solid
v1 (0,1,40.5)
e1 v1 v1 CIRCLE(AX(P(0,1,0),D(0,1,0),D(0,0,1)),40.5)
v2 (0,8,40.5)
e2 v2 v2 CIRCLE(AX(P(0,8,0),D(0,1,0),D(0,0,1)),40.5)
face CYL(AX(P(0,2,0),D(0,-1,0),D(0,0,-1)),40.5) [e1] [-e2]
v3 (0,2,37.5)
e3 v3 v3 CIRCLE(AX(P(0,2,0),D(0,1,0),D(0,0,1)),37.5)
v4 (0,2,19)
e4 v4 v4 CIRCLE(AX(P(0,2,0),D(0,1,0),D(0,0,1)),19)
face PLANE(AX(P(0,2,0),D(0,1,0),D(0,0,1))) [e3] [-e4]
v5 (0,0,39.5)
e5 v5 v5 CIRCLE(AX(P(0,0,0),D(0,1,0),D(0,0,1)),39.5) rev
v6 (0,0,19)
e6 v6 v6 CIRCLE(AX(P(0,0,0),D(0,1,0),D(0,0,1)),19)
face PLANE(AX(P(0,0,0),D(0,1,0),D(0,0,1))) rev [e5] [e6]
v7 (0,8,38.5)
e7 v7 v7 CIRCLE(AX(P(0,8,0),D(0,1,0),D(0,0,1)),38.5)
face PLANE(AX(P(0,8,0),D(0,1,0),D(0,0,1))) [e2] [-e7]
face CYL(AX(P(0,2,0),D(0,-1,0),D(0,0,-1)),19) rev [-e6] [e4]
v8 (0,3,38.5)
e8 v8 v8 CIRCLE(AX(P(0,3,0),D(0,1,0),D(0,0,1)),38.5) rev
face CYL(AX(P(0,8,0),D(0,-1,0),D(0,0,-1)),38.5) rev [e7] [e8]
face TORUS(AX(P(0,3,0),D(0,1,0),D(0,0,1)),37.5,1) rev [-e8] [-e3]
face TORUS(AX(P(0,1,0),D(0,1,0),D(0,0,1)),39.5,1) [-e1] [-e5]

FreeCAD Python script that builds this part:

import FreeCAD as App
import Part
import Sketcher


def edges_at(feature, points):
    """Names of the edges that pass closest to the given points."""
    edges = feature.Shape.Edges
    near = lambda p: min(range(len(edges)), key=lambda i: edges[i].distToShape(Part.Vertex(*p))[0])
    return sorted({f"Edge{near(p) + 1}" for p in points})

doc = App.newDocument("Part")
body = doc.addObject("PartDesign::Body", "Body")

sketch1 = body.newObject("Sketcher::SketchObject", "Sketch")
sketch1.AttachmentSupport = (doc.getObject("XZ_Plane"), [""])
sketch1.MapMode = "FlatFace"
sketch1.addGeometry([
    Part.Circle(App.Vector(0, 0, 0), App.Vector(0, 0, 1), 40),
    Part.Circle(App.Vector(0, 0, 0), App.Vector(0, 0, 1), 19),
], False)
sketch1.addConstraint([
    Sketcher.Constraint("Coincident", 0, 3, -1, 1),
    Sketcher.Constraint("Coincident", 1, 3, -1, 1),
    Sketcher.Constraint("Diameter", 0, 81.0),
    Sketcher.Constraint("Diameter", 1, 38.0),
])
pad1 = body.newObject("PartDesign::Pad", "Pad")
pad1.Profile = sketch1
pad1.Length = 2
pad1.Reversed = True

sketch2 = body.newObject("Sketcher::SketchObject", "Sketch001")
sketch2.AttachmentSupport = (doc.getObject("XZ_Plane"), [""])
sketch2.MapMode = "FlatFace"
sketch2.addGeometry([
    Part.Circle(App.Vector(0, 0, 0), App.Vector(0, 0, 1), 40),
    Part.Circle(App.Vector(0, 0, 0), App.Vector(0, 0, 1), 38),
], False)
sketch2.addConstraint([
    Sketcher.Constraint("Coincident", 0, 3, -1, 1),
    Sketcher.Constraint("Coincident", 1, 3, -1, 1),
    Sketcher.Constraint("Diameter", 0, 81.0),
    Sketcher.Constraint("Diameter", 1, 77.0),
])
pad2 = body.newObject("PartDesign::Pad", "Pad001")
pad2.Profile = sketch2
pad2.Length = 8
pad2.Reversed = True
doc.recompute()

fillet = body.newObject("PartDesign::Fillet", "Fillet")
fillet.Base = (pad2, edges_at(pad2, [(0, 0, -40.5)]))
fillet.Radius = 1
doc.recompute()

fillet2 = body.newObject("PartDesign::Fillet", "Fillet001")
fillet2.Base = (fillet, edges_at(fillet, [(0, 2, -38.5)]))
fillet2.Radius = 1

doc.recompute()
